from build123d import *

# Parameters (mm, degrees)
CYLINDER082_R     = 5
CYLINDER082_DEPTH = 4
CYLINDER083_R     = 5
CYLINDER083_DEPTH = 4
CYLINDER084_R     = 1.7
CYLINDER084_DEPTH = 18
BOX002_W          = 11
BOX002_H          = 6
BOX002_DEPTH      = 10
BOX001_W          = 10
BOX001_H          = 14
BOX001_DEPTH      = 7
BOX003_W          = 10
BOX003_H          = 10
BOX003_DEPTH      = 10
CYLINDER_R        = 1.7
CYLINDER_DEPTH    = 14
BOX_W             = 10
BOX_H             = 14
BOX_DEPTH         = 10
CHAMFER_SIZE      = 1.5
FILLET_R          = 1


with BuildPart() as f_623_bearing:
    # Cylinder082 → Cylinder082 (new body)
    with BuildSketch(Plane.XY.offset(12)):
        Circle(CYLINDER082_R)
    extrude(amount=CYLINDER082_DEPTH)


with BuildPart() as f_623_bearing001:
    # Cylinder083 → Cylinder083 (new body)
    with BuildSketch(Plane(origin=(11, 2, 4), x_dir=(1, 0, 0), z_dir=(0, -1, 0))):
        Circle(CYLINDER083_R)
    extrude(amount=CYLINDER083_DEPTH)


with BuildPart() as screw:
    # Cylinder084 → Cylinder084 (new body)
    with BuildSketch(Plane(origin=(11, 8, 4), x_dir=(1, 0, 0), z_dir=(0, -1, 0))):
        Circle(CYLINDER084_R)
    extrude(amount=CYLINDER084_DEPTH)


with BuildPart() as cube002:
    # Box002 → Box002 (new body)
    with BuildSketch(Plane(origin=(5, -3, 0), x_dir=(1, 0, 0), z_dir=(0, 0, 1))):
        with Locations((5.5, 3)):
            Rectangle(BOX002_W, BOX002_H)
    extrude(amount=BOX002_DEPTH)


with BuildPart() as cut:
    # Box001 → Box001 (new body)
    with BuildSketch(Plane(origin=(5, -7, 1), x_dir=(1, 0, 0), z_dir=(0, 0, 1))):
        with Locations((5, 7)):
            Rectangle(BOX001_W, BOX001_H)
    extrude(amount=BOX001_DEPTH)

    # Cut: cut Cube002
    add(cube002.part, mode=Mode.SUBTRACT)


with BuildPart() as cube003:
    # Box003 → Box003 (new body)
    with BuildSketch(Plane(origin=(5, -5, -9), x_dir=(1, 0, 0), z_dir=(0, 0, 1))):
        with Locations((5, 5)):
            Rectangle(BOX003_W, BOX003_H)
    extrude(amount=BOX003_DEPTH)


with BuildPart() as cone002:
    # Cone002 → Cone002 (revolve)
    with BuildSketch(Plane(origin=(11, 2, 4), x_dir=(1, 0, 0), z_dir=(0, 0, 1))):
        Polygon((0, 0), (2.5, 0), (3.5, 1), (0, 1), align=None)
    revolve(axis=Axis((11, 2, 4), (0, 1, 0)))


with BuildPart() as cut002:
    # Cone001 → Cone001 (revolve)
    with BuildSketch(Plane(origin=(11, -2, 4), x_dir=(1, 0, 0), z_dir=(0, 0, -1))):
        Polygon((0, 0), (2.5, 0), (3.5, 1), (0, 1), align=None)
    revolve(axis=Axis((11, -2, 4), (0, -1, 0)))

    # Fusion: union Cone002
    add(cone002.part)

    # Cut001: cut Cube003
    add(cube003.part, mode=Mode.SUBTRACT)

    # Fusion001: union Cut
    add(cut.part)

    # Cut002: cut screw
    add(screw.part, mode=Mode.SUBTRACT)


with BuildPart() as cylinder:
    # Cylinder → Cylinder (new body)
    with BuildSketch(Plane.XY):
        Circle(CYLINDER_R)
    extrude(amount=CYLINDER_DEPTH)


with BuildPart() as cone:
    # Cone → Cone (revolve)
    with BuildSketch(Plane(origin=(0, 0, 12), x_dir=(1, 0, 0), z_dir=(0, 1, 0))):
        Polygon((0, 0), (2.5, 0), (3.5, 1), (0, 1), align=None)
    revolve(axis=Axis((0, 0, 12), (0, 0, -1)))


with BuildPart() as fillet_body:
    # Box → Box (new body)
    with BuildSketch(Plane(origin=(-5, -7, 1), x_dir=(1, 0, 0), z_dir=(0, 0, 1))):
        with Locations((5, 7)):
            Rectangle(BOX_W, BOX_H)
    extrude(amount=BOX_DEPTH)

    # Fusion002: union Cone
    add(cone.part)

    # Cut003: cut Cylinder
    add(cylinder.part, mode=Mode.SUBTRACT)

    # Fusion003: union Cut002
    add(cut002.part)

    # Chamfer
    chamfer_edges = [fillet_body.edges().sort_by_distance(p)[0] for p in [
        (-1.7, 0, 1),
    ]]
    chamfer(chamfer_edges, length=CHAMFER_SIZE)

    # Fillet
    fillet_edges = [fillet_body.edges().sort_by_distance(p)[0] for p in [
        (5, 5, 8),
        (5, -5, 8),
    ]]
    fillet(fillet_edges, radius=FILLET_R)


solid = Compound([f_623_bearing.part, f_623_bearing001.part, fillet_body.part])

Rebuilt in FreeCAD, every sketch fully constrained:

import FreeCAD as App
import Part
import Sketcher
Q = App.Units.Quantity


def edges_at(feature, points):
    """Names of the edges that pass closest to the given points."""
    edges = feature.Shape.Edges
    near = lambda p: min(range(len(edges)), key=lambda i: edges[i].distToShape(Part.Vertex(*p))[0])
    return sorted({f"Edge{near(p) + 1}" for p in points})

doc = App.newDocument("Part")
body = doc.addObject("PartDesign::Body", "Body")

# Sketch on XY plane
sketch1 = body.newObject("Sketcher::SketchObject", "Sketch")
sketch1.AttachmentSupport = (doc.getObject("XY_Plane"), [""])
sketch1.MapMode = "FlatFace"
sketch1.AttachmentOffset = App.Placement(App.Vector(0, 0, 12), App.Rotation())
sketch1.addGeometry(Part.Circle(App.Vector(0, 0, 0), App.Vector(0, 0, 1), 5), False)
sketch1.addConstraint(Sketcher.Constraint("Coincident", 0, 3, -1, 1))
sketch1.addConstraint(Sketcher.Constraint("Diameter", 0, 10.0))
pad1 = body.newObject("PartDesign::Pad", "Pad")
pad1.Profile = sketch1
pad1.Length = 4
body2 = doc.addObject("PartDesign::Body", "Body001")

# Sketch on XZ plane
sketch2 = body2.newObject("Sketcher::SketchObject", "Sketch001")
sketch2.AttachmentSupport = (doc.getObject("XZ_Plane001"), [""])
sketch2.MapMode = "FlatFace"
sketch2.AttachmentOffset = App.Placement(App.Vector(0, 0, -2), App.Rotation())
sketch2.addGeometry(Part.Circle(App.Vector(11, 4, 0), App.Vector(0, 0, 1), 5), False)
sketch2.addConstraint(Sketcher.Constraint("Diameter", 0, 10.0))
sketch2.addConstraint(Sketcher.Constraint("DistanceX", -1, 1, 0, 3, 11.0))
sketch2.addConstraint(Sketcher.Constraint("DistanceY", -1, 1, 0, 3, 4.0))
pad2 = body2.newObject("PartDesign::Pad", "Pad001")
pad2.Profile = sketch2
pad2.Length = 4
body3 = doc.addObject("PartDesign::Body", "Body002")

# Sketch on XZ plane
sketch3 = body3.newObject("Sketcher::SketchObject", "Sketch002")
sketch3.AttachmentSupport = (doc.getObject("XZ_Plane002"), [""])
sketch3.MapMode = "FlatFace"
sketch3.AttachmentOffset = App.Placement(App.Vector(0, 0, -8), App.Rotation())
sketch3.addGeometry(Part.Circle(App.Vector(11, 4, 0), App.Vector(0, 0, 1), 1.7), False)
sketch3.addConstraint(Sketcher.Constraint("Diameter", 0, 3.4))
sketch3.addConstraint(Sketcher.Constraint("DistanceX", -1, 1, 0, 3, 11.0))
sketch3.addConstraint(Sketcher.Constraint("DistanceY", -1, 1, 0, 3, 4.0))
pad3 = body3.newObject("PartDesign::Pad", "Pad002")
pad3.Profile = sketch3
pad3.Length = 18
body4 = doc.addObject("PartDesign::Body", "Body003")

# Sketch on XY plane
sketch4 = body4.newObject("Sketcher::SketchObject", "Sketch003")
sketch4.AttachmentSupport = (doc.getObject("XY_Plane003"), [""])
sketch4.MapMode = "FlatFace"
sketch4.addGeometry(Part.LineSegment(App.Vector(5, 3, 0), App.Vector(5, -3, 0)), False)
sketch4.addGeometry(Part.LineSegment(App.Vector(5, -3, 0), App.Vector(16, -3, 0)), False)
sketch4.addGeometry(Part.LineSegment(App.Vector(16, -3, 0), App.Vector(16, 3, 0)), False)
sketch4.addGeometry(Part.LineSegment(App.Vector(16, 3, 0), App.Vector(5, 3, 0)), False)
sketch4.addConstraint(Sketcher.Constraint("Coincident", 0, 2, 1, 1))
sketch4.addConstraint(Sketcher.Constraint("Coincident", 1, 2, 2, 1))
sketch4.addConstraint(Sketcher.Constraint("Coincident", 2, 2, 3, 1))
sketch4.addConstraint(Sketcher.Constraint("Coincident", 3, 2, 0, 1))
sketch4.addConstraint(Sketcher.Constraint("Vertical", 0))
sketch4.addConstraint(Sketcher.Constraint("Horizontal", 1))
sketch4.addConstraint(Sketcher.Constraint("Vertical", 2))
sketch4.addConstraint(Sketcher.Constraint("Horizontal", 3))
sketch4.addConstraint(Sketcher.Constraint("DistanceX", 1, 1, 1, 2, 11.0))
sketch4.addConstraint(Sketcher.Constraint("DistanceY", 0, 2, 0, 1, 6.0))
sketch4.addConstraint(Sketcher.Constraint("DistanceX", -1, 1, 0, 2, 5.0))
sketch4.addConstraint(Sketcher.Constraint("DistanceY", 0, 2, -1, 1, 3.0))
pad4 = body4.newObject("PartDesign::Pad", "Pad003")
pad4.Profile = sketch4
pad4.Length = 10
body5 = doc.addObject("PartDesign::Body", "Body004")
body5.AllowCompound = True

# Sketch on XY plane
sketch5 = body5.newObject("Sketcher::SketchObject", "Sketch004")
sketch5.AttachmentSupport = (doc.getObject("XY_Plane004"), [""])
sketch5.MapMode = "FlatFace"
sketch5.AttachmentOffset = App.Placement(App.Vector(0, 0, 1), App.Rotation())
sketch5.addGeometry(Part.LineSegment(App.Vector(5, 7, 0), App.Vector(5, -7, 0)), False)
sketch5.addGeometry(Part.LineSegment(App.Vector(5, -7, 0), App.Vector(15, -7, 0)), False)
sketch5.addGeometry(Part.LineSegment(App.Vector(15, -7, 0), App.Vector(15, 7, 0)), False)
sketch5.addGeometry(Part.LineSegment(App.Vector(15, 7, 0), App.Vector(5, 7, 0)), False)
sketch5.addConstraint(Sketcher.Constraint("Coincident", 0, 2, 1, 1))
sketch5.addConstraint(Sketcher.Constraint("Coincident", 1, 2, 2, 1))
sketch5.addConstraint(Sketcher.Constraint("Coincident", 2, 2, 3, 1))
sketch5.addConstraint(Sketcher.Constraint("Coincident", 3, 2, 0, 1))
sketch5.addConstraint(Sketcher.Constraint("Vertical", 0))
sketch5.addConstraint(Sketcher.Constraint("Horizontal", 1))
sketch5.addConstraint(Sketcher.Constraint("Vertical", 2))
sketch5.addConstraint(Sketcher.Constraint("Horizontal", 3))
sketch5.addConstraint(Sketcher.Constraint("DistanceX", 1, 1, 1, 2, 10.0))
sketch5.addConstraint(Sketcher.Constraint("DistanceY", 0, 2, 0, 1, 14.0))
sketch5.addConstraint(Sketcher.Constraint("DistanceX", -1, 1, 0, 2, 5.0))
sketch5.addConstraint(Sketcher.Constraint("DistanceY", 0, 2, -1, 1, 7.0))
pad5 = body5.newObject("PartDesign::Pad", "Pad004")
pad5.Profile = sketch5
pad5.Length = 7
doc.recompute()

boolean = body5.newObject("PartDesign::Boolean", "Boolean")
boolean.Type = "Cut"
boolean.addObjects([body4])
body6 = doc.addObject("PartDesign::Body", "Body005")

# Sketch on XY plane
sketch6 = body6.newObject("Sketcher::SketchObject", "Sketch005")
sketch6.AttachmentSupport = (doc.getObject("XY_Plane005"), [""])
sketch6.MapMode = "FlatFace"
sketch6.AttachmentOffset = App.Placement(App.Vector(0, 0, -9), App.Rotation())
sketch6.addGeometry(Part.LineSegment(App.Vector(5, 5, 0), App.Vector(5, -5, 0)), False)
sketch6.addGeometry(Part.LineSegment(App.Vector(5, -5, 0), App.Vector(15, -5, 0)), False)
sketch6.addGeometry(Part.LineSegment(App.Vector(15, -5, 0), App.Vector(15, 5, 0)), False)
sketch6.addGeometry(Part.LineSegment(App.Vector(15, 5, 0), App.Vector(5, 5, 0)), False)
sketch6.addConstraint(Sketcher.Constraint("Coincident", 0, 2, 1, 1))
sketch6.addConstraint(Sketcher.Constraint("Coincident", 1, 2, 2, 1))
sketch6.addConstraint(Sketcher.Constraint("Coincident", 2, 2, 3, 1))
sketch6.addConstraint(Sketcher.Constraint("Coincident", 3, 2, 0, 1))
sketch6.addConstraint(Sketcher.Constraint("Vertical", 0))
sketch6.addConstraint(Sketcher.Constraint("Horizontal", 1))
sketch6.addConstraint(Sketcher.Constraint("Vertical", 2))
sketch6.addConstraint(Sketcher.Constraint("Horizontal", 3))
sketch6.addConstraint(Sketcher.Constraint("Equal", 3, 0))
sketch6.addConstraint(Sketcher.Constraint("DistanceX", 1, 1, 1, 2, 10.0))
sketch6.addConstraint(Sketcher.Constraint("DistanceX", -1, 1, 0, 2, 5.0))
sketch6.addConstraint(Sketcher.Constraint("DistanceY", 0, 2, -1, 1, 5.0))
pad6 = body6.newObject("PartDesign::Pad", "Pad005")
pad6.Profile = sketch6
pad6.Length = 10
body7 = doc.addObject("PartDesign::Body", "Body006")

# Sketch on XY plane
sketch7 = body7.newObject("Sketcher::SketchObject", "Sketch006")
sketch7.AttachmentSupport = (doc.getObject("XY_Plane006"), [""])
sketch7.MapMode = "FlatFace"
sketch7.AttachmentOffset = App.Placement(App.Vector(0, 0, 4), App.Rotation())
sketch7.addGeometry(Part.LineSegment(App.Vector(11, 2, 0), App.Vector(13.5, 2, 0)), False)
sketch7.addGeometry(Part.LineSegment(App.Vector(13.5, 2, 0), App.Vector(14.5, 3, 0)), False)
sketch7.addGeometry(Part.LineSegment(App.Vector(14.5, 3, 0), App.Vector(11, 3, 0)), False)
sketch7.addGeometry(Part.LineSegment(App.Vector(11, 3, 0), App.Vector(11, 2, 0)), False)
sketch7.addGeometry(Part.LineSegment(App.Vector(11, 2, 0), App.Vector(11, 3, 0)), True)  # axis
sketch7.addConstraint(Sketcher.Constraint("Coincident", 0, 2, 1, 1))
sketch7.addConstraint(Sketcher.Constraint("Coincident", 1, 2, 2, 1))
sketch7.addConstraint(Sketcher.Constraint("Coincident", 2, 2, 3, 1))
sketch7.addConstraint(Sketcher.Constraint("Coincident", 3, 2, 0, 1))
sketch7.addConstraint(Sketcher.Constraint("Horizontal", 0))
sketch7.addConstraint(Sketcher.Constraint("Horizontal", 2))
sketch7.addConstraint(Sketcher.Constraint("Vertical", 3))
sketch7.addConstraint(Sketcher.Constraint("Vertical", 4))
sketch7.addConstraint(Sketcher.Constraint("Coincident", 4, 1, 3, 2))
sketch7.addConstraint(Sketcher.Constraint("Horizontal", 1, 2, 4, 2))
sketch7.addConstraint(Sketcher.Constraint("DistanceY", 3, 2, 3, 1, 1.0))
sketch7.addConstraint(Sketcher.Constraint("Angle", 1, Q("45 deg")))
sketch7.addConstraint(Sketcher.Constraint("DistanceX", 0, 1, 0, 2, 2.5))
sketch7.addConstraint(Sketcher.Constraint("DistanceY", -1, 1, 0, 2, 2.0))
sketch7.addConstraint(Sketcher.Constraint("DistanceX", -1, 1, 2, 2, 11.0))
revolution = body7.newObject("PartDesign::Revolution", "Revolution")
revolution.Profile = sketch7
revolution.ReferenceAxis = (sketch7, ["Axis0"])
revolution.Angle = 360
body8 = doc.addObject("PartDesign::Body", "Body007")
body8.AllowCompound = True

# Sketch on XY plane
sketch8 = body8.newObject("Sketcher::SketchObject", "Sketch007")
sketch8.AttachmentSupport = (doc.getObject("XY_Plane007"), [""])
sketch8.MapMode = "FlatFace"
sketch8.AttachmentOffset = App.Placement(App.Vector(0, 0, 4), App.Rotation())
sketch8.addGeometry(Part.LineSegment(App.Vector(11, -2, 0), App.Vector(13.5, -2, 0)), False)
sketch8.addGeometry(Part.LineSegment(App.Vector(13.5, -2, 0), App.Vector(14.5, -3, 0)), False)
sketch8.addGeometry(Part.LineSegment(App.Vector(14.5, -3, 0), App.Vector(11, -3, 0)), False)
sketch8.addGeometry(Part.LineSegment(App.Vector(11, -3, 0), App.Vector(11, -2, 0)), False)
sketch8.addGeometry(Part.LineSegment(App.Vector(11, -2, 0), App.Vector(11, -3, 0)), True)  # axis
sketch8.addConstraint(Sketcher.Constraint("Coincident", 0, 2, 1, 1))
sketch8.addConstraint(Sketcher.Constraint("Coincident", 1, 2, 2, 1))
sketch8.addConstraint(Sketcher.Constraint("Coincident", 2, 2, 3, 1))
sketch8.addConstraint(Sketcher.Constraint("Coincident", 3, 2, 0, 1))
sketch8.addConstraint(Sketcher.Constraint("Horizontal", 0))
sketch8.addConstraint(Sketcher.Constraint("Horizontal", 2))
sketch8.addConstraint(Sketcher.Constraint("Vertical", 3))
sketch8.addConstraint(Sketcher.Constraint("Vertical", 4))
sketch8.addConstraint(Sketcher.Constraint("Coincident", 4, 1, 3, 2))
sketch8.addConstraint(Sketcher.Constraint("Horizontal", 1, 2, 4, 2))
sketch8.addConstraint(Sketcher.Constraint("DistanceY", 3, 1, 3, 2, 1.0))
sketch8.addConstraint(Sketcher.Constraint("Angle", 1, Q("-45 deg")))
sketch8.addConstraint(Sketcher.Constraint("DistanceX", 0, 1, 0, 2, 2.5))
sketch8.addConstraint(Sketcher.Constraint("DistanceY", 0, 2, -1, 1, 2.0))
sketch8.addConstraint(Sketcher.Constraint("DistanceX", -1, 1, 2, 2, 11.0))
revolution2 = body8.newObject("PartDesign::Revolution", "Revolution001")
revolution2.Profile = sketch8
revolution2.ReferenceAxis = (sketch8, ["Axis0"])
revolution2.Angle = 360
doc.recompute()

boolean2 = body8.newObject("PartDesign::Boolean", "Boolean001")
boolean2.Type = "Fuse"
boolean2.addObjects([body7])
doc.recompute()

boolean3 = body8.newObject("PartDesign::Boolean", "Boolean002")
boolean3.Type = "Cut"
boolean3.addObjects([body6])
doc.recompute()

boolean4 = body8.newObject("PartDesign::Boolean", "Boolean003")
boolean4.Type = "Fuse"
boolean4.addObjects([body5])
doc.recompute()

boolean5 = body8.newObject("PartDesign::Boolean", "Boolean004")
boolean5.Type = "Cut"
boolean5.addObjects([body3])
body9 = doc.addObject("PartDesign::Body", "Body008")

# Sketch on XY plane
sketch9 = body9.newObject("Sketcher::SketchObject", "Sketch008")
sketch9.AttachmentSupport = (doc.getObject("XY_Plane008"), [""])
sketch9.MapMode = "FlatFace"
sketch9.addGeometry(Part.Circle(App.Vector(0, 0, 0), App.Vector(0, 0, 1), 1.7), False)
sketch9.addConstraint(Sketcher.Constraint("Coincident", 0, 3, -1, 1))
sketch9.addConstraint(Sketcher.Constraint("Diameter", 0, 3.4))
pad7 = body9.newObject("PartDesign::Pad", "Pad006")
pad7.Profile = sketch9
pad7.Length = 14
body10 = doc.addObject("PartDesign::Body", "Body009")

# Sketch on XZ plane
sketch10 = body10.newObject("Sketcher::SketchObject", "Sketch009")
sketch10.AttachmentSupport = (doc.getObject("XZ_Plane009"), [""])
sketch10.MapMode = "FlatFace"
sketch10.addGeometry(Part.LineSegment(App.Vector(0, 12, 0), App.Vector(2.5, 12, 0)), False)
sketch10.addGeometry(Part.LineSegment(App.Vector(2.5, 12, 0), App.Vector(3.5, 11, 0)), False)
sketch10.addGeometry(Part.LineSegment(App.Vector(3.5, 11, 0), App.Vector(0, 11, 0)), False)
sketch10.addGeometry(Part.LineSegment(App.Vector(0, 11, 0), App.Vector(0, 12, 0)), False)
sketch10.addConstraint(Sketcher.Constraint("Coincident", 0, 2, 1, 1))
sketch10.addConstraint(Sketcher.Constraint("Coincident", 1, 2, 2, 1))
sketch10.addConstraint(Sketcher.Constraint("Coincident", 2, 2, 3, 1))
sketch10.addConstraint(Sketcher.Constraint("Coincident", 3, 2, 0, 1))
sketch10.addConstraint(Sketcher.Constraint("Horizontal", 0))
sketch10.addConstraint(Sketcher.Constraint("Horizontal", 2))
sketch10.addConstraint(Sketcher.Constraint("Vertical", 3))
sketch10.addConstraint(Sketcher.Constraint("PointOnObject", 2, 2, -2))
sketch10.addConstraint(Sketcher.Constraint("DistanceY", 3, 1, 3, 2, 1.0))
sketch10.addConstraint(Sketcher.Constraint("Angle", 1, Q("-45 deg")))
sketch10.addConstraint(Sketcher.Constraint("DistanceX", 0, 1, 0, 2, 2.5))
sketch10.addConstraint(Sketcher.Constraint("DistanceY", -1, 1, 0, 2, 12.0))
revolution3 = body10.newObject("PartDesign::Revolution", "Revolution002")
revolution3.Profile = sketch10
revolution3.ReferenceAxis = (sketch10, ["V_Axis"])
revolution3.Angle = 360
body11 = doc.addObject("PartDesign::Body", "Body010")

# Sketch on XY plane
sketch11 = body11.newObject("Sketcher::SketchObject", "Sketch010")
sketch11.AttachmentSupport = (doc.getObject("XY_Plane010"), [""])
sketch11.MapMode = "FlatFace"
sketch11.AttachmentOffset = App.Placement(App.Vector(0, 0, 1), App.Rotation())
sketch11.addGeometry(Part.LineSegment(App.Vector(-5, 7, 0), App.Vector(-5, -7, 0)), False)
sketch11.addGeometry(Part.LineSegment(App.Vector(-5, -7, 0), App.Vector(5, -7, 0)), False)
sketch11.addGeometry(Part.LineSegment(App.Vector(5, -7, 0), App.Vector(5, 7, 0)), False)
sketch11.addGeometry(Part.LineSegment(App.Vector(5, 7, 0), App.Vector(-5, 7, 0)), False)
sketch11.addConstraint(Sketcher.Constraint("Coincident", 0, 2, 1, 1))
sketch11.addConstraint(Sketcher.Constraint("Coincident", 1, 2, 2, 1))
sketch11.addConstraint(Sketcher.Constraint("Coincident", 2, 2, 3, 1))
sketch11.addConstraint(Sketcher.Constraint("Coincident", 3, 2, 0, 1))
sketch11.addConstraint(Sketcher.Constraint("Vertical", 0))
sketch11.addConstraint(Sketcher.Constraint("Horizontal", 1))
sketch11.addConstraint(Sketcher.Constraint("Vertical", 2))
sketch11.addConstraint(Sketcher.Constraint("Horizontal", 3))
sketch11.addConstraint(Sketcher.Constraint("Symmetric", 0, 2, 2, 2, -1, 1))
sketch11.addConstraint(Sketcher.Constraint("DistanceX", 1, 1, 1, 2, 10.0))
sketch11.addConstraint(Sketcher.Constraint("DistanceY", 0, 2, 0, 1, 14.0))
pad8 = body11.newObject("PartDesign::Pad", "Pad007")
pad8.Profile = sketch11
pad8.Length = 10
doc.recompute()

boolean6 = body11.newObject("PartDesign::Boolean", "Boolean005")
boolean6.Type = "Fuse"
boolean6.addObjects([body10])
doc.recompute()

boolean7 = body11.newObject("PartDesign::Boolean", "Boolean006")
boolean7.Type = "Cut"
boolean7.addObjects([body9])
doc.recompute()

boolean8 = body11.newObject("PartDesign::Boolean", "Boolean007")
boolean8.Type = "Fuse"
boolean8.addObjects([body8])
doc.recompute()

chamfer = body11.newObject("PartDesign::Chamfer", "Chamfer")
chamfer.Base = (boolean8, edges_at(boolean8, [(-1.7, 0, 1)]))
chamfer.Size = 1.5
doc.recompute()

fillet = body11.newObject("PartDesign::Fillet", "Fillet")
fillet.Base = (chamfer, edges_at(chamfer, [(5, 5, 8), (5, -5, 8)]))
fillet.Radius = 1

doc.recompute()
